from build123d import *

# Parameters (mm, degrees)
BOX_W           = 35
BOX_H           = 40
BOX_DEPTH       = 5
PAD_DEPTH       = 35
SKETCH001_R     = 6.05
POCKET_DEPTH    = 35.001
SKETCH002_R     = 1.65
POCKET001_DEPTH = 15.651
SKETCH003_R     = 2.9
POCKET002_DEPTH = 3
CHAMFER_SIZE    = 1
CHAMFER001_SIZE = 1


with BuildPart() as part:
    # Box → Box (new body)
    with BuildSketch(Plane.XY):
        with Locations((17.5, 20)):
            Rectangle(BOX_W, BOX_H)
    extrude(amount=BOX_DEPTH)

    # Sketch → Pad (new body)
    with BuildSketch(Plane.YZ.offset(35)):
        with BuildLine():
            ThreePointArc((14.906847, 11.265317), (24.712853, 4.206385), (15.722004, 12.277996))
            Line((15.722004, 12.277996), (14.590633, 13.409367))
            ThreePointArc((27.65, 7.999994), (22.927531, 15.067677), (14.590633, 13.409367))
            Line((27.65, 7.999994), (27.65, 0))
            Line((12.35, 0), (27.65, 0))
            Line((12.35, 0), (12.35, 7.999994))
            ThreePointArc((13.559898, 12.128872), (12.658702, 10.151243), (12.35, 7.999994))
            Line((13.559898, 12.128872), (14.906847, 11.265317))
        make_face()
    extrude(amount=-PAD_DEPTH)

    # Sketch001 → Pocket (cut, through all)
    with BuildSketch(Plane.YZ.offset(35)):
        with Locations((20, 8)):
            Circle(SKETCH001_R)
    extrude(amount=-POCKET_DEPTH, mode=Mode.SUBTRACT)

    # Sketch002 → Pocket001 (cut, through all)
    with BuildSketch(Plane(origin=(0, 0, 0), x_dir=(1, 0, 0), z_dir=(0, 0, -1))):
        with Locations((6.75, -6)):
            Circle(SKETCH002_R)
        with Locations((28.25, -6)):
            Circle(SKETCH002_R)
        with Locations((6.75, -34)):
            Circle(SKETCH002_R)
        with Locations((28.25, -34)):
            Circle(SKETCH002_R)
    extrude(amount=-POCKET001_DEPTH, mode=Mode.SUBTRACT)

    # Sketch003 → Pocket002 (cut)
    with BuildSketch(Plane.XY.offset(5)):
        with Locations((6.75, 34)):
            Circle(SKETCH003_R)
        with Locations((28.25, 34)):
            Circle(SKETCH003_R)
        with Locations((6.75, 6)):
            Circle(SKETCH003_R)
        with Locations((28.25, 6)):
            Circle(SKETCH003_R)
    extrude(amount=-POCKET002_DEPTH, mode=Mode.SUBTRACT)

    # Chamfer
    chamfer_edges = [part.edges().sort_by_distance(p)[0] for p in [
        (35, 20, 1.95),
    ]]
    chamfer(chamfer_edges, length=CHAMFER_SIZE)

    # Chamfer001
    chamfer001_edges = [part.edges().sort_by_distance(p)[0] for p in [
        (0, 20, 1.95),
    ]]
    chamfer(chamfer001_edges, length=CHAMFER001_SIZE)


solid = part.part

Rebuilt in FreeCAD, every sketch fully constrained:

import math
import FreeCAD as App
import Part
import Sketcher
Q = App.Units.Quantity


def edges_at(feature, points):
    """Names of the edges that pass closest to the given points."""
    edges = feature.Shape.Edges
    near = lambda p: min(range(len(edges)), key=lambda i: edges[i].distToShape(Part.Vertex(*p))[0])
    return sorted({f"Edge{near(p) + 1}" for p in points})


def add_polygon(sketch, points):
    """Adds a closed chain of lines whose ends are joined by coincident constraints."""
    first, n = sketch.GeometryCount, len(points)
    for a, b in zip(points, points[1:] + points[:1]):
        sketch.addGeometry(Part.LineSegment(App.Vector(*a, 0), App.Vector(*b, 0)), False)
    for i in range(n):
        sketch.addConstraint(Sketcher.Constraint("Coincident", first + i, 2, first + (i + 1) % n, 1))

doc = App.newDocument("Part")
params = doc.addObject("Spreadsheet::Sheet", "Params")
for row, (alias, value) in enumerate([
    ("sketch1_width", "35 mm"),
    ("sketch1_height", "40 mm"),
    ("pad1_length", "5 mm"),
    ("sketch2_radius", "6.05 mm"),
    ("sketch2_radius2", "7.65 mm"),
    ("pad2_length", "35 mm"),
    ("sketch3_diameter", "12.1 mm"),
    ("sketch4_diameter", "3.3 mm"),
    ("sketch5_diameter", "5.8 mm"),
    ("pocket3_length", "3 mm"),
    ("chamfer_size", "1 mm"),
    ("chamfer2_size", "1 mm"),
], start=1):
    params.set(f"A{row}", alias)
    params.set(f"B{row}", "=" + value)
    params.setAlias(f"B{row}", alias)

body = doc.addObject("PartDesign::Body", "Body")

# Sketch on XY plane
sketch1 = body.newObject("Sketcher::SketchObject", "Sketch")
sketch1.AttachmentSupport = (doc.getObject("XY_Plane"), [""])
sketch1.MapMode = "FlatFace"
add_polygon(sketch1, [(0, 40), (0, 0), (35, 0), (35, 40)])  # lines 0-3
sketch1.addConstraint([
    Sketcher.Constraint("Vertical", 0),
    Sketcher.Constraint("Horizontal", 1),
    Sketcher.Constraint("Vertical", 2),
    Sketcher.Constraint("Horizontal", 3),
    Sketcher.Constraint("Coincident", 0, 2, -1, 1),
    Sketcher.Constraint("DistanceX", 1, 1, 1, 2, 35.0),
    Sketcher.Constraint("DistanceY", 0, 2, 0, 1, 40.0),
])
sketch1.setExpression("Constraints[9]", "Params.sketch1_width")
sketch1.setExpression("Constraints[10]", "Params.sketch1_height")
pad1 = body.newObject("PartDesign::Pad", "Pad")
pad1.Profile = sketch1
pad1.setExpression("Length", "Params.pad1_length")

# Sketch on YZ plane
sketch2 = body.newObject("Sketcher::SketchObject", "Sketch001")
sketch2.AttachmentSupport = (doc.getObject("YZ_Plane"), [""])
sketch2.MapMode = "FlatFace"
sketch2.AttachmentOffset = App.Placement(App.Vector(0, 0, 35), App.Rotation())
sketch2.addGeometry([
    Part.ArcOfCircle(Part.Circle(App.Vector(19.999999, 7.999999, 0), App.Vector(0, 0, 1), 6.05), math.radians(147.335287), math.radians(494.999989)),  # 0
    Part.LineSegment(App.Vector(14.906847, 11.265317, 0), App.Vector(13.559898, 12.128872, 0)),  # 1
    Part.ArcOfCircle(Part.Circle(App.Vector(19.999994, 8.000002, 0), App.Vector(0, 0, 1), 7.649994), math.radians(147.33528), math.radians(180.000056)),  # 2
    Part.LineSegment(App.Vector(12.35, 7.999994, 0), App.Vector(12.35, 0, 0)),  # 3
    Part.LineSegment(App.Vector(12.35, 0, 0), App.Vector(27.65, 0, 0)),  # 4
    Part.LineSegment(App.Vector(27.65, 0, 0), App.Vector(27.65, 7.999994, 0)),  # 5
    Part.ArcOfCircle(Part.Circle(App.Vector(20, 8, 0), App.Vector(0, 0, 1), 7.65), math.radians(-0.000041), math.radians(134.999996)),  # 6
    Part.LineSegment(App.Vector(14.590633, 13.409367, 0), App.Vector(15.722004, 12.277996, 0)),  # 7
], False)
sketch2.addConstraint([
    Sketcher.Constraint("Coincident", 0, 1, 1, 1),
    Sketcher.Constraint("Coincident", 1, 2, 2, 1),
    Sketcher.Constraint("Tangent", 2, 2, 3, 1),
    Sketcher.Constraint("Coincident", 3, 2, 4, 1),
    Sketcher.Constraint("Coincident", 4, 2, 5, 1),
    Sketcher.Constraint("Tangent", 5, 2, 6, 1),
    Sketcher.Constraint("Coincident", 6, 2, 7, 1),
    Sketcher.Constraint("Coincident", 7, 2, 0, 2),
    Sketcher.Constraint("Vertical", 3),
    Sketcher.Constraint("Horizontal", 4),
    Sketcher.Constraint("Vertical", 5),
    Sketcher.Constraint("Coincident", 2, 3, 0, 3),
    Sketcher.Constraint("Coincident", 6, 3, 0, 3),
    Sketcher.Constraint("PointOnObject", 3, 2, -1),
    Sketcher.Constraint("Equal", 1, 7),
    Sketcher.Constraint("Angle", 7, Q("-45 deg")),
    Sketcher.Constraint("Radius", 0, 6.05),
    Sketcher.Constraint("Radius", 6, 7.65),
    Sketcher.Constraint("DistanceX", -1, 1, 0, 3, 19.999999),
    Sketcher.Constraint("DistanceY", -1, 1, 0, 3, 7.999999),
    Sketcher.Constraint("DistanceY", 2, 2, 7, 2, 4.278002),
    Sketcher.Constraint("DistanceX", 1, 2, 0, 3, 6.440101),
    Sketcher.Constraint("DistanceX", 1, 2, 0, 1, 1.346949),
])
sketch2.setExpression("Constraints[16]", "Params.sketch2_radius")
sketch2.setExpression("Constraints[17]", "Params.sketch2_radius2")
pad2 = body.newObject("PartDesign::Pad", "Pad001")
pad2.Profile = sketch2
pad2.setExpression("Length", "Params.pad2_length")
pad2.Reversed = True

# Sketch on YZ plane
sketch3 = body.newObject("Sketcher::SketchObject", "Sketch002")
sketch3.AttachmentSupport = (doc.getObject("YZ_Plane"), [""])
sketch3.MapMode = "FlatFace"
sketch3.AttachmentOffset = App.Placement(App.Vector(0, 0, 35), App.Rotation())
sketch3.addGeometry(Part.Circle(App.Vector(20, 8, 0), App.Vector(0, 0, 1), 6.05), False)
sketch3.addConstraint([
    Sketcher.Constraint("Diameter", 0, 12.1),
    Sketcher.Constraint("DistanceX", -1, 1, 0, 3, 20.0),
    Sketcher.Constraint("DistanceY", -1, 1, 0, 3, 8.0),
])
sketch3.setExpression("Constraints[0]", "Params.sketch3_diameter")
pocket1 = body.newObject("PartDesign::Pocket", "Pocket")
pocket1.Profile = sketch3
pocket1.Type = "ThroughAll"

# Sketch on XY plane
sketch4 = body.newObject("Sketcher::SketchObject", "Sketch003")
sketch4.AttachmentSupport = (doc.getObject("XY_Plane"), [""])
sketch4.MapMode = "FlatFace"
sketch4.addGeometry([
    Part.Circle(App.Vector(6.75, 6, 0), App.Vector(0, 0, 1), 1.65),
    Part.Circle(App.Vector(28.25, 6, 0), App.Vector(0, 0, 1), 1.65),
    Part.Circle(App.Vector(6.75, 34, 0), App.Vector(0, 0, 1), 1.65),
    Part.Circle(App.Vector(28.25, 34, 0), App.Vector(0, 0, 1), 1.65),
], False)
sketch4.addConstraint([
    Sketcher.Constraint("Equal", 0, 1),
    Sketcher.Constraint("Equal", 1, 2),
    Sketcher.Constraint("Equal", 2, 3),
    Sketcher.Constraint("Horizontal", 0, 3, 1, 3),
    Sketcher.Constraint("Horizontal", 2, 3, 3, 3),
    Sketcher.Constraint("Vertical", 0, 3, 2, 3),
    Sketcher.Constraint("Vertical", 1, 3, 3, 3),
    Sketcher.Constraint("Diameter", 0, 3.3),
    Sketcher.Constraint("DistanceY", -1, 1, 0, 3, 6.0),
    Sketcher.Constraint("DistanceY", -1, 1, 2, 3, 34.0),
    Sketcher.Constraint("DistanceX", 0, 3, 1, 3, 21.5),
    Sketcher.Constraint("DistanceX", -1, 1, 0, 3, 6.75),
])
sketch4.setExpression("Constraints[7]", "Params.sketch4_diameter")
pocket2 = body.newObject("PartDesign::Pocket", "Pocket001")
pocket2.Profile = sketch4
pocket2.Type = "ThroughAll"
pocket2.Reversed = True

# Sketch on XY plane
sketch5 = body.newObject("Sketcher::SketchObject", "Sketch004")
sketch5.AttachmentSupport = (doc.getObject("XY_Plane"), [""])
sketch5.MapMode = "FlatFace"
sketch5.AttachmentOffset = App.Placement(App.Vector(0, 0, 5), App.Rotation())
sketch5.addGeometry([
    Part.Circle(App.Vector(6.75, 34, 0), App.Vector(0, 0, 1), 2.9),
    Part.Circle(App.Vector(28.25, 34, 0), App.Vector(0, 0, 1), 2.9),
    Part.Circle(App.Vector(6.75, 6, 0), App.Vector(0, 0, 1), 2.9),
    Part.Circle(App.Vector(28.25, 6, 0), App.Vector(0, 0, 1), 2.9),
], False)
sketch5.addConstraint([
    Sketcher.Constraint("Equal", 0, 1),
    Sketcher.Constraint("Equal", 1, 2),
    Sketcher.Constraint("Equal", 2, 3),
    Sketcher.Constraint("Horizontal", 0, 3, 1, 3),
    Sketcher.Constraint("Horizontal", 2, 3, 3, 3),
    Sketcher.Constraint("Vertical", 0, 3, 2, 3),
    Sketcher.Constraint("Vertical", 1, 3, 3, 3),
    Sketcher.Constraint("Diameter", 0, 5.8),
    Sketcher.Constraint("DistanceY", -1, 1, 0, 3, 34.0),
    Sketcher.Constraint("DistanceY", -1, 1, 2, 3, 6.0),
    Sketcher.Constraint("DistanceX", 0, 3, 1, 3, 21.5),
    Sketcher.Constraint("DistanceX", -1, 1, 0, 3, 6.75),
])
sketch5.setExpression("Constraints[7]", "Params.sketch5_diameter")
pocket3 = body.newObject("PartDesign::Pocket", "Pocket002")
pocket3.Profile = sketch5
pocket3.setExpression("Length", "Params.pocket3_length")
doc.recompute()

chamfer = body.newObject("PartDesign::Chamfer", "Chamfer")
chamfer.Base = (pocket3, edges_at(pocket3, [(35, 25.996, 7.196)]))
chamfer.setExpression("Size", "Params.chamfer_size")
doc.recompute()

chamfer2 = body.newObject("PartDesign::Chamfer", "Chamfer001")
chamfer2.Base = (chamfer, edges_at(chamfer, [(0, 25.996, 7.196)]))
chamfer2.setExpression("Size", "Params.chamfer2_size")

doc.recompute()
